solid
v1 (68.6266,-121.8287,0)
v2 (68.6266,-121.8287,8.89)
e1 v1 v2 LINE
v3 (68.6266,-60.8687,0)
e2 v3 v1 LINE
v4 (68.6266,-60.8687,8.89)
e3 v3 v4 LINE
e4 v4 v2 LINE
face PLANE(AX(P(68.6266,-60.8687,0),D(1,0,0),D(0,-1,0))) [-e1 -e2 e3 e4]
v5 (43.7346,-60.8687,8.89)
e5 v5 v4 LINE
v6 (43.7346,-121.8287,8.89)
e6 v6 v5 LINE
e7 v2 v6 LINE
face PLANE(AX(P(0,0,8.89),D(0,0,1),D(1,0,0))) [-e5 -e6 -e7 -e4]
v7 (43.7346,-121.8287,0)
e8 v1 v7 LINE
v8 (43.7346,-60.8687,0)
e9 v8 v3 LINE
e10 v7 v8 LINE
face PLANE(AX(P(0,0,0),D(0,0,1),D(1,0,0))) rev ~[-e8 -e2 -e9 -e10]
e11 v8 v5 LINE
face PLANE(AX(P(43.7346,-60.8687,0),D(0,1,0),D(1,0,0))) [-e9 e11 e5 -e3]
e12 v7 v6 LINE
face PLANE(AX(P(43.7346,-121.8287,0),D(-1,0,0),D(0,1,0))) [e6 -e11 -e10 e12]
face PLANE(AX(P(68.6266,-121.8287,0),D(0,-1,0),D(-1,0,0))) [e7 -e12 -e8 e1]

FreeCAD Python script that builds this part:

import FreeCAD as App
import Part
import Sketcher
from FreeCAD import Vector
Q = App.Units.Quantity


def add_polygon(sketch, points):
    """Adds a closed chain of lines whose ends are joined by coincident constraints."""
    first, n = sketch.GeometryCount, len(points)
    for a, b in zip(points, points[1:] + points[:1]):
        sketch.addGeometry(Part.LineSegment(App.Vector(*a, 0), App.Vector(*b, 0)), False)
    for i in range(n):
        sketch.addConstraint(Sketcher.Constraint("Coincident", first + i, 2, first + (i + 1) % n, 1))

doc = App.newDocument("Part")
params = doc.addObject("Spreadsheet::Sheet", "Params")
for row, (alias, value) in enumerate([
    ("sketch1_height", "2.4 in"),
    ("sketch1_width", "0.98 in"),
    ("pad1_length", "0.35 in"),
], start=1):
    params.set(f"A{row}", alias)
    params.set(f"B{row}", "=" + value)
    params.setAlias(f"B{row}", alias)

body = doc.addObject("PartDesign::Body", "Body")

# Sketch on XY plane
sketch1 = body.newObject("Sketcher::SketchObject", "Sketch")
sketch1.AttachmentSupport = (doc.getObject("XY_Plane"), [""])
sketch1.MapMode = "FlatFace"
add_polygon(sketch1, [(43.7346, -121.8287), (68.6266, -121.8287), (68.6266, -60.8687), (43.7346, -60.8687)])  # lines 0-3
sketch1.addConstraint([
    Sketcher.Constraint("Horizontal", 0),
    Sketcher.Constraint("Vertical", 1),
    Sketcher.Constraint("Horizontal", 2),
    Sketcher.Constraint("Vertical", 3),
    Sketcher.Constraint("DistanceY", 1, 1, 1, 2, Q("2.4 in")),
    Sketcher.Constraint("DistanceX", 0, 1, 0, 2, Q("0.98 in")),
    Sketcher.Constraint("DistanceY", 0, 2, -1, 1, Q("4.7964 in")),
    Sketcher.Constraint("DistanceX", -1, 1, 0, 2, 68.6266),
])
sketch1.setExpression("Constraints[8]", "Params.sketch1_height")
sketch1.setExpression("Constraints[9]", "Params.sketch1_width")
pad1 = body.newObject("PartDesign::Pad", "Pad")
pad1.Profile = sketch1
pad1.setExpression("Length", "Params.pad1_length")

doc.recompute()
